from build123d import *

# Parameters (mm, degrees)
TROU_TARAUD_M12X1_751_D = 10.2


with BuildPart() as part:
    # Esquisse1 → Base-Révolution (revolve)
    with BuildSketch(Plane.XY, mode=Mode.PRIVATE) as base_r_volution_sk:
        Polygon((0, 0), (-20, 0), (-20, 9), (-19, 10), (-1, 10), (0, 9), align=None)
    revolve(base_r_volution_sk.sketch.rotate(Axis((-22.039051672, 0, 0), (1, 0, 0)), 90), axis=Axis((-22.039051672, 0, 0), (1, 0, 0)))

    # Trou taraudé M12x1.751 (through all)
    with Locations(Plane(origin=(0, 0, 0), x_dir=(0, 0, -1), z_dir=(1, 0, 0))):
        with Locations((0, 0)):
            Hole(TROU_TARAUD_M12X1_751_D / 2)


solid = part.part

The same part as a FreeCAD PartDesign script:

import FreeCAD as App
import Part
import Sketcher
from FreeCAD import Vector
Q = App.Units.Quantity


def add_polygon(sketch, points):
    """Adds a closed chain of lines whose ends are joined by coincident constraints."""
    first, n = sketch.GeometryCount, len(points)
    for a, b in zip(points, points[1:] + points[:1]):
        sketch.addGeometry(Part.LineSegment(App.Vector(*a, 0), App.Vector(*b, 0)), False)
    for i in range(n):
        sketch.addConstraint(Sketcher.Constraint("Coincident", first + i, 2, first + (i + 1) % n, 1))

doc = App.newDocument("Part")
body = doc.addObject("PartDesign::Body", "Body")

# Sketch on XY plane
sketch1 = body.newObject("Sketcher::SketchObject", "Sketch")
sketch1.AttachmentSupport = (doc.getObject("XY_Plane"), [""])
sketch1.MapMode = "FlatFace"
add_polygon(sketch1, [(-20, 0), (0, 0), (0, 9), (-1, 10), (-19, 10), (-20, 9)])  # lines 0-5
sketch1.addConstraint([
    Sketcher.Constraint("Horizontal", 0),
    Sketcher.Constraint("Vertical", 1),
    Sketcher.Constraint("Horizontal", 3),
    Sketcher.Constraint("Vertical", 5),
    Sketcher.Constraint("Coincident", 0, 2, -1, 1),
    Sketcher.Constraint("Perpendicular", 2, 4),
    Sketcher.Constraint("Horizontal", 1, 2, 4, 2),
    Sketcher.Constraint("Equal", 2, 4),
    Sketcher.Constraint("DistanceX", 0, 1, 0, 2, Q("20 mm")),
    Sketcher.Constraint("DistanceX", 3, 2, 3, 1, Q("18 mm")),
    Sketcher.Constraint("DistanceY", 1, 1, 1, 2, Q("9 mm")),
])
revolution = body.newObject("PartDesign::Revolution", "Revolution")
revolution.Profile = sketch1
revolution.ReferenceAxis = (sketch1, ["H_Axis"])
revolution.Angle = 360

# Sketch on YZ plane
sketch2 = body.newObject("Sketcher::SketchObject", "Sketch001")
sketch2.AttachmentSupport = (doc.getObject("YZ_Plane"), [""])
sketch2.MapMode = "FlatFace"
sketch2.addGeometry(Part.Circle(Vector(0, 0, 0), Vector(0, 0, 1), 5), False)
sketch2.addConstraint([
    Sketcher.Constraint("Coincident", 0, 3, -1, 1),
    Sketcher.Constraint("Diameter", 0, Q("10.2 mm")),
])
doc.recompute()
hole = body.newObject("PartDesign::Hole", "Hole")
hole.Profile = sketch2
hole.ThreadType = "None"
hole.Diameter = 10.2
hole.DepthType = "ThroughAll"

doc.recompute()
